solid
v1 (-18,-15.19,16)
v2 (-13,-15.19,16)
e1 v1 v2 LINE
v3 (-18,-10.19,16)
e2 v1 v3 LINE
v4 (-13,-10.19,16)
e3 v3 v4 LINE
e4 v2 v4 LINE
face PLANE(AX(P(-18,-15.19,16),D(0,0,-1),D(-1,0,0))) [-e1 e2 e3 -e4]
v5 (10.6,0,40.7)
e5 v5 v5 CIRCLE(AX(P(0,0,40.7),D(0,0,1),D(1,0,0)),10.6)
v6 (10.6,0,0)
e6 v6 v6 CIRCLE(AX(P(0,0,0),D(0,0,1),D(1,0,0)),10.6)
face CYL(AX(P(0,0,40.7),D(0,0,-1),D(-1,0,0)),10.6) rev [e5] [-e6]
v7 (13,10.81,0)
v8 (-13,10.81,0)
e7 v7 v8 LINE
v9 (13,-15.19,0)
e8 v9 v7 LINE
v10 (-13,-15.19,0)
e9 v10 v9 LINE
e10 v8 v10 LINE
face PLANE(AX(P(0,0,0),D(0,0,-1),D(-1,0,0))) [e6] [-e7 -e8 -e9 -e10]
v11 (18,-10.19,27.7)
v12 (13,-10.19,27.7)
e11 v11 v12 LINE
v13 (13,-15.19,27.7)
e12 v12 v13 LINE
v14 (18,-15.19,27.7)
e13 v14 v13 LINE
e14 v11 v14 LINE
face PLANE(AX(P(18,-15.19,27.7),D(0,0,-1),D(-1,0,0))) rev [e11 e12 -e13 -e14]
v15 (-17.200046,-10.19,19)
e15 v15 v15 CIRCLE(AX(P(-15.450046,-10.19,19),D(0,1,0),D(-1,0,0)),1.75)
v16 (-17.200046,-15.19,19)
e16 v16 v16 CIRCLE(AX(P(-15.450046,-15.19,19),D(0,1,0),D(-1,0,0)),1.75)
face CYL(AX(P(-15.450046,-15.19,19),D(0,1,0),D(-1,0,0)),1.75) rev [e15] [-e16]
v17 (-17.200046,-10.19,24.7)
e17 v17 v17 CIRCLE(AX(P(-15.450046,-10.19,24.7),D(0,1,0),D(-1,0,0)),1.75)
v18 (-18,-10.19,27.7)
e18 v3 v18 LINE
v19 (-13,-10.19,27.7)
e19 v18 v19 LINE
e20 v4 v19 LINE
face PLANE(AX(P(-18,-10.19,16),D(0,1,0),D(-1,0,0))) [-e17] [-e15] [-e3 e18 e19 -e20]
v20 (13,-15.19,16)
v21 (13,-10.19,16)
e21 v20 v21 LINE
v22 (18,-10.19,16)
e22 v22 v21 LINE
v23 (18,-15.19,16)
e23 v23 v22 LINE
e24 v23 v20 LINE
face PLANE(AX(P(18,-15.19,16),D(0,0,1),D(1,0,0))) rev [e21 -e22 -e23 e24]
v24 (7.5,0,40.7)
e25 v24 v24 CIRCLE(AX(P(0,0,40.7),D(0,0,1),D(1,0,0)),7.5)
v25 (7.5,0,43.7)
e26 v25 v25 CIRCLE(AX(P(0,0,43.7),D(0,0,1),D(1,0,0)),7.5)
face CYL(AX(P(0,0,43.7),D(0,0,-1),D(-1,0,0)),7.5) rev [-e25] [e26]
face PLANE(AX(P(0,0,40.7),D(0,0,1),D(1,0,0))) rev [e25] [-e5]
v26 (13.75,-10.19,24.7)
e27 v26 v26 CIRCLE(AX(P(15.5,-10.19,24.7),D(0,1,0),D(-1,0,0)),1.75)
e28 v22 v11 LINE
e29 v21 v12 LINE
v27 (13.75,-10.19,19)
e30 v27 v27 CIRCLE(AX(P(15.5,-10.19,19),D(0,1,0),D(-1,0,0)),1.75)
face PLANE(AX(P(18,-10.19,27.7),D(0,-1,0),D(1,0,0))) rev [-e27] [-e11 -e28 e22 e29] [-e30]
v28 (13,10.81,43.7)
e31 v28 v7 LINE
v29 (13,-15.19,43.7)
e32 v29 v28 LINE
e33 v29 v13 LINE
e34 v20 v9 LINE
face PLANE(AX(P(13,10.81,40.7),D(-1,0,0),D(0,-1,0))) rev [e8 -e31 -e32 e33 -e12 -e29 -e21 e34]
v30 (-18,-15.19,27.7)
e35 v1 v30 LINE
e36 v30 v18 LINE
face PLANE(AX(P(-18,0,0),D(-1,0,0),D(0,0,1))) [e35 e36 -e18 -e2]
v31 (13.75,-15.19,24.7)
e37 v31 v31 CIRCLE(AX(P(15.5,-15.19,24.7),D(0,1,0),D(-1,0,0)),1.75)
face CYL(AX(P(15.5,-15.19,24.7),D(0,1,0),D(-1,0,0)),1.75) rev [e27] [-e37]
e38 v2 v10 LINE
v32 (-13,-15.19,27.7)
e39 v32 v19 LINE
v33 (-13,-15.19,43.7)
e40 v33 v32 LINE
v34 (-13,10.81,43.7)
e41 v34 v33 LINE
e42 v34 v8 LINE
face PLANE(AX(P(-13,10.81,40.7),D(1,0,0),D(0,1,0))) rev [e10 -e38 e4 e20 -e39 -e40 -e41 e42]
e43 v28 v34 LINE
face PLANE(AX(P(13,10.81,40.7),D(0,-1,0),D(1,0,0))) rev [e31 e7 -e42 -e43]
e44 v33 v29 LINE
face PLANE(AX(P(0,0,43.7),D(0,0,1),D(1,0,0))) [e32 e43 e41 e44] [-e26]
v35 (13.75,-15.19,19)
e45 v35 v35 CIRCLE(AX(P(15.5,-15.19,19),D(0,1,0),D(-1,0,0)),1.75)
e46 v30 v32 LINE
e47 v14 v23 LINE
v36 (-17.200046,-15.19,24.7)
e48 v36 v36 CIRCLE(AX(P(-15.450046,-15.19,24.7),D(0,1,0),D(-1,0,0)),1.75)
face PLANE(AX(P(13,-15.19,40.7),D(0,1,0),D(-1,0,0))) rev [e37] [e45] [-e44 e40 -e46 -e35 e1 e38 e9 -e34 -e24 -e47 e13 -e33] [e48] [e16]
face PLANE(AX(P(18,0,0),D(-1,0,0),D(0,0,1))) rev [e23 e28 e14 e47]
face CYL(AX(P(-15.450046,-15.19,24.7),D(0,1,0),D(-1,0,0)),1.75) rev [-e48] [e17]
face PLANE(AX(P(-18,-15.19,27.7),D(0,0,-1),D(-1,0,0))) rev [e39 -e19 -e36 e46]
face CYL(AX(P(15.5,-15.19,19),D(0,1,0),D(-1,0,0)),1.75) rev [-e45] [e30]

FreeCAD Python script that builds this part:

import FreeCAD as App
import Part
import Sketcher
Q = App.Units.Quantity


def add_polygon(sketch, points):
    """Adds a closed chain of lines whose ends are joined by coincident constraints."""
    first, n = sketch.GeometryCount, len(points)
    for a, b in zip(points, points[1:] + points[:1]):
        sketch.addGeometry(Part.LineSegment(App.Vector(*a, 0), App.Vector(*b, 0)), False)
    for i in range(n):
        sketch.addConstraint(Sketcher.Constraint("Coincident", first + i, 2, first + (i + 1) % n, 1))

doc = App.newDocument("Part")
body = doc.addObject("PartDesign::Body", "Body")

sketch1 = body.newObject("Sketcher::SketchObject", "Sketch")
sketch1.AttachmentSupport = (doc.getObject("XY_Plane"), [""])
sketch1.MapMode = "FlatFace"
add_polygon(sketch1, [(-13, 11), (-13, -15), (13, -15), (13, 11)])
sketch1.addGeometry(Part.Circle(App.Vector(0, 0, 0), App.Vector(0, 0, 1), 11), False)
sketch1.addConstraint(Sketcher.Constraint("Vertical", 0))
sketch1.addConstraint(Sketcher.Constraint("Horizontal", 1))
sketch1.addConstraint(Sketcher.Constraint("Vertical", 2))
sketch1.addConstraint(Sketcher.Constraint("Horizontal", 3))
sketch1.addConstraint(Sketcher.Constraint("Coincident", 4, 3, -1, 1))
sketch1.addConstraint(Sketcher.Constraint("Equal", 3, 0))
sketch1.addConstraint(Sketcher.Constraint("Diameter", 4, Q("21.2 mm")))
sketch1.addConstraint(Sketcher.Constraint("DistanceX", 1, 1, 1, 2, Q("26 mm")))
sketch1.addConstraint(Sketcher.Constraint("DistanceX", 0, 2, -1, 1, Q("13 mm")))
sketch1.addConstraint(Sketcher.Constraint("DistanceY", 0, 2, -1, 1, Q("15.19 mm")))
pad1 = body.newObject("PartDesign::Pad", "Pad")
pad1.Profile = sketch1
pad1.Length = 40.7

sketch2 = body.newObject("Sketcher::SketchObject", "Sketch001")
sketch2.AttachmentSupport = (doc.getObject("XY_Plane"), [""])
sketch2.MapMode = "FlatFace"
sketch2.AttachmentOffset = App.Placement(App.Vector(0, 0, 40.7), App.Rotation())
add_polygon(sketch2, [(-13, 11), (-13, -15), (13, -15), (13, 11)])
sketch2.addGeometry(Part.Circle(App.Vector(0, 0, 0), App.Vector(0, 0, 1), 8), False)
sketch2.addConstraint(Sketcher.Constraint("Vertical", 0))
sketch2.addConstraint(Sketcher.Constraint("Horizontal", 1))
sketch2.addConstraint(Sketcher.Constraint("Vertical", 2))
sketch2.addConstraint(Sketcher.Constraint("Horizontal", 3))
sketch2.addConstraint(Sketcher.Constraint("Coincident", 4, 3, -1, 1))
sketch2.addConstraint(Sketcher.Constraint("Equal", 3, 0))
sketch2.addConstraint(Sketcher.Constraint("Diameter", 4, Q("15 mm")))
sketch2.addConstraint(Sketcher.Constraint("DistanceX", 1, 1, 1, 2, Q("26 mm")))
sketch2.addConstraint(Sketcher.Constraint("DistanceX", 0, 2, -1, 1, Q("13 mm")))
sketch2.addConstraint(Sketcher.Constraint("DistanceY", 0, 2, -1, 1, Q("15.19 mm")))
pad2 = body.newObject("PartDesign::Pad", "Pad001")
pad2.Profile = sketch2
pad2.Length = 3

sketch3 = body.newObject("Sketcher::SketchObject", "Sketch002")
sketch3.AttachmentSupport = (doc.getObject("YZ_Plane"), [""])
sketch3.MapMode = "FlatFace"
sketch3.AttachmentOffset = App.Placement(App.Vector(0, 0, -13), App.Rotation())
add_polygon(sketch3, [(-10, 16), (-15, 16), (-15, 28), (-10, 28)])
sketch3.addConstraint(Sketcher.Constraint("Horizontal", 0))
sketch3.addConstraint(Sketcher.Constraint("Vertical", 1))
sketch3.addConstraint(Sketcher.Constraint("Horizontal", 2))
sketch3.addConstraint(Sketcher.Constraint("Vertical", 3))
sketch3.addConstraint(Sketcher.Constraint("DistanceX", 0, 2, 0, 1, Q("5 mm")))
sketch3.addConstraint(Sketcher.Constraint("DistanceY", 1, 1, 1, 2, Q("11.7 mm")))
sketch3.addConstraint(Sketcher.Constraint("DistanceY", -1, 1, 0, 2, Q("16 mm")))
sketch3.addConstraint(Sketcher.Constraint("DistanceX", 0, 2, -1, 1, Q("15.19 mm")))
pad3 = body.newObject("PartDesign::Pad", "Pad002")
pad3.Profile = sketch3
pad3.Length = 5
pad3.Reversed = True

sketch4 = body.newObject("Sketcher::SketchObject", "Sketch003")
sketch4.AttachmentSupport = (doc.getObject("XZ_Plane"), [""])
sketch4.MapMode = "FlatFace"
sketch4.AttachmentOffset = App.Placement(App.Vector(0, 0, 10.19), App.Rotation())
sketch4.addGeometry(Part.Circle(App.Vector(-15.5, 19, 0), App.Vector(0, 0, 1), 1.8), False)
sketch4.addGeometry(Part.Circle(App.Vector(-15.5, 24.7, 0), App.Vector(0, 0, 1), 1.8), False)
sketch4.addConstraint(Sketcher.Constraint("Equal", 0, 1))
sketch4.addConstraint(Sketcher.Constraint("Vertical", 0, 3, 1, 3))
sketch4.addConstraint(Sketcher.Constraint("Diameter", 0, Q("3.5 mm")))
sketch4.addConstraint(Sketcher.Constraint("DistanceY", -1, 1, 0, 3, Q("19 mm")))
sketch4.addConstraint(Sketcher.Constraint("DistanceY", -1, 1, 1, 3, Q("24.7 mm")))
sketch4.addConstraint(Sketcher.Constraint("DistanceX", 0, 3, -1, 1, Q("15.450046 mm")))
pocket1 = body.newObject("PartDesign::Pocket", "Pocket")
pocket1.Profile = sketch4
pocket1.Type = "ThroughAll"
pocket1.Reversed = True

sketch5 = body.newObject("Sketcher::SketchObject", "Sketch004")
sketch5.AttachmentSupport = (doc.getObject("YZ_Plane"), [""])
sketch5.MapMode = "FlatFace"
sketch5.AttachmentOffset = App.Placement(App.Vector(0, 0, 13), App.Rotation())
add_polygon(sketch5, [(-10, 28), (-15, 28), (-15, 16), (-10, 16)])
sketch5.addConstraint(Sketcher.Constraint("Horizontal", 0))
sketch5.addConstraint(Sketcher.Constraint("Vertical", 1))
sketch5.addConstraint(Sketcher.Constraint("Horizontal", 2))
sketch5.addConstraint(Sketcher.Constraint("Vertical", 3))
sketch5.addConstraint(Sketcher.Constraint("DistanceX", 0, 2, 0, 1, Q("5 mm")))
sketch5.addConstraint(Sketcher.Constraint("DistanceY", 1, 2, 1, 1, Q("11.7 mm")))
sketch5.addConstraint(Sketcher.Constraint("DistanceY", -1, 1, 1, 2, Q("16 mm")))
sketch5.addConstraint(Sketcher.Constraint("DistanceX", 0, 2, -1, 1, Q("15.19 mm")))
pad4 = body.newObject("PartDesign::Pad", "Pad003")
pad4.Profile = sketch5
pad4.Length = 5

sketch6 = body.newObject("Sketcher::SketchObject", "Sketch005")
sketch6.AttachmentSupport = (doc.getObject("XZ_Plane"), [""])
sketch6.MapMode = "FlatFace"
sketch6.AttachmentOffset = App.Placement(App.Vector(0, 0, 10.19), App.Rotation())
sketch6.addGeometry(Part.Circle(App.Vector(15.5, 24.7, 0), App.Vector(0, 0, 1), 1.8), False)
sketch6.addGeometry(Part.Circle(App.Vector(15.5, 19, 0), App.Vector(0, 0, 1), 1.8), False)
sketch6.addConstraint(Sketcher.Constraint("Equal", 0, 1))
sketch6.addConstraint(Sketcher.Constraint("Vertical", 0, 3, 1, 3))
sketch6.addConstraint(Sketcher.Constraint("Diameter", 0, Q("3.5 mm")))
sketch6.addConstraint(Sketcher.Constraint("DistanceY", -1, 1, 1, 3, Q("19 mm")))
sketch6.addConstraint(Sketcher.Constraint("DistanceX", -1, 1, 0, 3, Q("15.5 mm")))
sketch6.addConstraint(Sketcher.Constraint("DistanceY", -1, 1, 0, 3, Q("24.7 mm")))
pocket2 = body.newObject("PartDesign::Pocket", "Pocket001")
pocket2.Profile = sketch6
pocket2.Type = "ThroughAll"
pocket2.Reversed = True

doc.recompute()
